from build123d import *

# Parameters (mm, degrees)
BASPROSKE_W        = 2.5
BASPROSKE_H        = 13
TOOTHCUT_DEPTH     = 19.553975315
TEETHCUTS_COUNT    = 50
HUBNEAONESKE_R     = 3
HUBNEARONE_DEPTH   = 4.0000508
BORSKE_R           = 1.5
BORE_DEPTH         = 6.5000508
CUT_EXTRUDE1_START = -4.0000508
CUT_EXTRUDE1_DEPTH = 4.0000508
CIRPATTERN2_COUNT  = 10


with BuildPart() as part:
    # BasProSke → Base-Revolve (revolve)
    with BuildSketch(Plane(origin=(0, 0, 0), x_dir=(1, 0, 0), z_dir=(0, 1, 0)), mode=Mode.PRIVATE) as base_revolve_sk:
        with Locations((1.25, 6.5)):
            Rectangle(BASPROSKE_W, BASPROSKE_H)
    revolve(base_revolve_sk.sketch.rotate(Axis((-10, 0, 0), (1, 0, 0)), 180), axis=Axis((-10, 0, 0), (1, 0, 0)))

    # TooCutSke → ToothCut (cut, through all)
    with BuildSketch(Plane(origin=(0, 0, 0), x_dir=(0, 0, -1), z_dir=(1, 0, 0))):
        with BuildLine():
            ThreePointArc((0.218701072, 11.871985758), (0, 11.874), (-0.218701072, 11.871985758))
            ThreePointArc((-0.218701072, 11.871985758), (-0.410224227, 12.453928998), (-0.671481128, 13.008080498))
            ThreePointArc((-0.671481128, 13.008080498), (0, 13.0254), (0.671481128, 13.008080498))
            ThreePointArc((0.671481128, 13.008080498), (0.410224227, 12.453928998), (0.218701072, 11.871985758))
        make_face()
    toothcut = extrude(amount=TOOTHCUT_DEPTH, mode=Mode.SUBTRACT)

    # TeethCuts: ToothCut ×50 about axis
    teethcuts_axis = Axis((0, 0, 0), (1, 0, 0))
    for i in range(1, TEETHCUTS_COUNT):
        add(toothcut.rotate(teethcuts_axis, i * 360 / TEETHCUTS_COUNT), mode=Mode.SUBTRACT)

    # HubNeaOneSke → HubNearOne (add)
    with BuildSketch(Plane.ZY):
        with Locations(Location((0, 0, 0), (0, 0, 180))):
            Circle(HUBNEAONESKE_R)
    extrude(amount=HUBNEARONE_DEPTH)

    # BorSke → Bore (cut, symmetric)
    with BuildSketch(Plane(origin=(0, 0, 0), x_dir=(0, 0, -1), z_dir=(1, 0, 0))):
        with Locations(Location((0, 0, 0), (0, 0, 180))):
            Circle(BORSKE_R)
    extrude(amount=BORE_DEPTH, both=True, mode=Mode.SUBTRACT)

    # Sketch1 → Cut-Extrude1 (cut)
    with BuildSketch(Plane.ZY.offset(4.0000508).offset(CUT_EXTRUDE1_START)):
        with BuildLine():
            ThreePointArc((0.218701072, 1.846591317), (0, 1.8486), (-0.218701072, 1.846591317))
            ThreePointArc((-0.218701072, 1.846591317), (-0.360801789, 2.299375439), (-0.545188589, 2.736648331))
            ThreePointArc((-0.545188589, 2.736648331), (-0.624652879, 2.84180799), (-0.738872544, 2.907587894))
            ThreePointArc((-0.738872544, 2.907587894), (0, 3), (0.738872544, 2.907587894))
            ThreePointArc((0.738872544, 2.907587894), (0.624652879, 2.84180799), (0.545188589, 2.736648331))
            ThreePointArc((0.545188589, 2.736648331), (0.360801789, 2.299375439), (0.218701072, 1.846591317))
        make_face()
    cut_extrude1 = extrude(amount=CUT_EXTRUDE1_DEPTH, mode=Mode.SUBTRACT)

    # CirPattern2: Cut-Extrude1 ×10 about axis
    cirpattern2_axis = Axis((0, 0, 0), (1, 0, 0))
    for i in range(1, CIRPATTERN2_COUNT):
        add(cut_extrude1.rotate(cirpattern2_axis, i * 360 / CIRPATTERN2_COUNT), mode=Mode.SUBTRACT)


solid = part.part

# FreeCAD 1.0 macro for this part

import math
import FreeCAD as App
import Part
import Sketcher
from FreeCAD import Vector
Q = App.Units.Quantity

doc = App.newDocument("Part")
body = doc.addObject("PartDesign::Body", "Body")

sketch1 = body.newObject("Sketcher::SketchObject", "Sketch")
sketch1.AttachmentSupport = (doc.getObject("XZ_Plane"), [""])
sketch1.MapMode = "FlatFace"
sketch1.addGeometry([
    Part.LineSegment(Vector(0, -13, 0), Vector(0, 0, 0)),
    Part.LineSegment(Vector(0, 0, 0), Vector(2.5, 0, 0)),
    Part.LineSegment(Vector(2.5, 0, 0), Vector(2.5, -13, 0)),
    Part.LineSegment(Vector(2.5, -13, 0), Vector(0, -13, 0)),
], False)
sketch1.addConstraint([
    Sketcher.Constraint("Coincident", 0, 2, 1, 1),
    Sketcher.Constraint("Coincident", 1, 2, 2, 1),
    Sketcher.Constraint("Coincident", 2, 2, 3, 1),
    Sketcher.Constraint("Coincident", 3, 2, 0, 1),
    Sketcher.Constraint("Vertical", 0),
    Sketcher.Constraint("Horizontal", 1),
    Sketcher.Constraint("Vertical", 2),
    Sketcher.Constraint("Horizontal", 3),
    Sketcher.Constraint("Coincident", 0, 2, -1, 1),
    Sketcher.Constraint("DistanceY", 0, 1, 0, 2, Q("13 mm")),
    Sketcher.Constraint("DistanceX", 1, 1, 1, 2, Q("2.5 mm")),
])
revolution = body.newObject("PartDesign::Revolution", "Revolution")
revolution.Profile = sketch1
revolution.ReferenceAxis = (sketch1, ["H_Axis"])
revolution.Angle = 360

sketch2 = body.newObject("Sketcher::SketchObject", "Sketch001")
sketch2.AttachmentSupport = (doc.getObject("YZ_Plane"), [""])
sketch2.MapMode = "FlatFace"
sketch2.addGeometry([
    Part.ArcOfCircle(Part.Circle(Vector(0.000001, 0, 0), Vector(0, 0, 1), 11.873999), math.radians(-1.055361), math.radians(1.055361)),
    Part.ArcOfCircle(Part.Circle(Vector(10.60282, -5.054941, 0), Vector(0, 0, 1), 5), math.radians(61.245861), math.radians(75.295545)),
    Part.ArcOfCircle(Part.Circle(Vector(0, 0, 0), Vector(0, 0, 1), 13.0254), math.radians(-2.955003), math.radians(2.955003)),
    Part.ArcOfCircle(Part.Circle(Vector(10.60282, 5.054941, 0), Vector(0, 0, 1), 5), math.radians(-75.295545), math.radians(-61.245861)),
], False)
sketch2.addConstraint([
    Sketcher.Constraint("Coincident", 0, 1, 1, 2),
    Sketcher.Constraint("Coincident", 1, 1, 2, 1),
    Sketcher.Constraint("Coincident", 2, 2, 3, 2),
    Sketcher.Constraint("Coincident", 3, 1, 0, 2),
    Sketcher.Constraint("Coincident", 0, 3, -1, 1),
    Sketcher.Constraint("Coincident", 2, 3, -1, 1),
    Sketcher.Constraint("Equal", 1, 3),
    Sketcher.Constraint("Symmetric", 1, 3, 3, 3, -1),
    Sketcher.Constraint("Radius", 1, Q("5 mm")),
    Sketcher.Constraint("Radius", 0, Q("11.873999 mm")),
    Sketcher.Constraint("Radius", 2, Q("13.0254 mm")),
    Sketcher.Constraint("DistanceY", 0, 1, -1, 1, Q("0.218701 mm")),
    Sketcher.Constraint("DistanceX", -1, 1, 1, 3, Q("10.60282 mm")),
])
pocket1 = body.newObject("PartDesign::Pocket", "Pocket")
pocket1.Profile = sketch2
pocket1.Type = "ThroughAll"
pocket1.Reversed = True
doc.recompute()

polarpattern = body.newObject("PartDesign::PolarPattern", "PolarPattern")
polarpattern.Originals = [pocket1]
polarpattern.Axis = (doc.getObject("X_Axis"), [""])
polarpattern.Angle = 360
polarpattern.Occurrences = 50
body.Tip = polarpattern

sketch3 = body.newObject("Sketcher::SketchObject", "Sketch002")
sketch3.AttachmentSupport = (doc.getObject("YZ_Plane"), [""])
sketch3.MapMode = "FlatFace"
sketch3.addGeometry(Part.Circle(Vector(0, 0, 0), Vector(0, 0, 1), 3), False)
sketch3.addConstraint([
    Sketcher.Constraint("Coincident", 0, 3, -1, 1),
    Sketcher.Constraint("Diameter", 0, Q("6 mm")),
])
pad1 = body.newObject("PartDesign::Pad", "Pad")
pad1.Profile = sketch3
pad1.Length = 4.000051
pad1.Reversed = True

sketch4 = body.newObject("Sketcher::SketchObject", "Sketch003")
sketch4.AttachmentSupport = (doc.getObject("YZ_Plane"), [""])
sketch4.MapMode = "FlatFace"
sketch4.addGeometry(Part.Circle(Vector(0, 0, 0), Vector(0, 0, 1), 1.5), False)
sketch4.addConstraint([
    Sketcher.Constraint("Coincident", 0, 3, -1, 1),
    Sketcher.Constraint("Diameter", 0, Q("3 mm")),
])
pocket2 = body.newObject("PartDesign::Pocket", "Pocket001")
pocket2.Profile = sketch4
pocket2.Length = 13.000102
pocket2.Midplane = True

sketch5 = body.newObject("Sketcher::SketchObject", "Sketch004")
sketch5.AttachmentSupport = (doc.getObject("YZ_Plane"), [""])
sketch5.MapMode = "FlatFace"
sketch5.addGeometry([
    Part.ArcOfCircle(Part.Circle(Vector(-10.058255, 0, 0), Vector(0, 0, 1), 11.906855), math.radians(-1.052449), math.radians(1.052449)),
    Part.ArcOfCircle(Part.Circle(Vector(0.577483, 5.054956, 0), Vector(0, 0, 1), 5), math.radians(-75.296221), math.radians(-64.416047)),
    Part.ArcOfCircle(Part.Circle(Vector(2.593811, 0.843527, 0), Vector(0, 0, 1), 0.33077), math.radians(-64.416048), math.radians(-18.445239)),
    Part.ArcOfCircle(Part.Circle(Vector(0, 0, 0), Vector(0, 0, 1), 3), math.radians(-14.258132), math.radians(14.258132)),
    Part.ArcOfCircle(Part.Circle(Vector(2.593811, -0.843527, 0), Vector(0, 0, 1), 0.33077), math.radians(18.445239), math.radians(64.416048)),
    Part.ArcOfCircle(Part.Circle(Vector(0.577483, -5.054956, 0), Vector(0, 0, 1), 5), math.radians(64.416047), math.radians(75.296221)),
], False)
sketch5.addConstraint([
    Sketcher.Constraint("Coincident", 0, 2, 1, 1),
    Sketcher.Constraint("Tangent", 1, 2, 2, 1),
    Sketcher.Constraint("Coincident", 2, 2, 3, 2),
    Sketcher.Constraint("Coincident", 3, 1, 4, 1),
    Sketcher.Constraint("Tangent", 4, 2, 5, 1),
    Sketcher.Constraint("Coincident", 5, 2, 0, 1),
    Sketcher.Constraint("Coincident", 3, 3, -1, 1),
    Sketcher.Constraint("Equal", 2, 4),
    Sketcher.Constraint("Equal", 1, 5),
    Sketcher.Constraint("Symmetric", 2, 3, 4, 3, -1),
    Sketcher.Constraint("Symmetric", 0, 2, 5, 2, -1),
    Sketcher.Constraint("Radius", 1, Q("5 mm")),
    Sketcher.Constraint("Radius", 3, Q("3 mm")),
    Sketcher.Constraint("Radius", 2, Q("0.33077 mm")),
    Sketcher.Constraint("Radius", 0, Q("11.906855 mm")),
    Sketcher.Constraint("DistanceY", -1, 1, 0, 2, Q("0.218701 mm")),
    Sketcher.Constraint("DistanceY", 4, 3, 2, 2, Q("1.5824 mm")),
    Sketcher.Constraint("DistanceX", -1, 1, 2, 3, Q("2.593811 mm")),
    Sketcher.Constraint("DistanceX", -1, 1, 0, 2, Q("1.846591 mm")),
])
pocket3 = body.newObject("PartDesign::Pocket", "Pocket002")
pocket3.Profile = sketch5
pocket3.Length = 4.000051
doc.recompute()

polarpattern2 = body.newObject("PartDesign::PolarPattern", "PolarPattern001")
polarpattern2.Originals = [pocket3]
polarpattern2.Axis = (doc.getObject("X_Axis"), [""])
polarpattern2.Angle = 360
polarpattern2.Occurrences = 10
body.Tip = polarpattern2

doc.recompute()
